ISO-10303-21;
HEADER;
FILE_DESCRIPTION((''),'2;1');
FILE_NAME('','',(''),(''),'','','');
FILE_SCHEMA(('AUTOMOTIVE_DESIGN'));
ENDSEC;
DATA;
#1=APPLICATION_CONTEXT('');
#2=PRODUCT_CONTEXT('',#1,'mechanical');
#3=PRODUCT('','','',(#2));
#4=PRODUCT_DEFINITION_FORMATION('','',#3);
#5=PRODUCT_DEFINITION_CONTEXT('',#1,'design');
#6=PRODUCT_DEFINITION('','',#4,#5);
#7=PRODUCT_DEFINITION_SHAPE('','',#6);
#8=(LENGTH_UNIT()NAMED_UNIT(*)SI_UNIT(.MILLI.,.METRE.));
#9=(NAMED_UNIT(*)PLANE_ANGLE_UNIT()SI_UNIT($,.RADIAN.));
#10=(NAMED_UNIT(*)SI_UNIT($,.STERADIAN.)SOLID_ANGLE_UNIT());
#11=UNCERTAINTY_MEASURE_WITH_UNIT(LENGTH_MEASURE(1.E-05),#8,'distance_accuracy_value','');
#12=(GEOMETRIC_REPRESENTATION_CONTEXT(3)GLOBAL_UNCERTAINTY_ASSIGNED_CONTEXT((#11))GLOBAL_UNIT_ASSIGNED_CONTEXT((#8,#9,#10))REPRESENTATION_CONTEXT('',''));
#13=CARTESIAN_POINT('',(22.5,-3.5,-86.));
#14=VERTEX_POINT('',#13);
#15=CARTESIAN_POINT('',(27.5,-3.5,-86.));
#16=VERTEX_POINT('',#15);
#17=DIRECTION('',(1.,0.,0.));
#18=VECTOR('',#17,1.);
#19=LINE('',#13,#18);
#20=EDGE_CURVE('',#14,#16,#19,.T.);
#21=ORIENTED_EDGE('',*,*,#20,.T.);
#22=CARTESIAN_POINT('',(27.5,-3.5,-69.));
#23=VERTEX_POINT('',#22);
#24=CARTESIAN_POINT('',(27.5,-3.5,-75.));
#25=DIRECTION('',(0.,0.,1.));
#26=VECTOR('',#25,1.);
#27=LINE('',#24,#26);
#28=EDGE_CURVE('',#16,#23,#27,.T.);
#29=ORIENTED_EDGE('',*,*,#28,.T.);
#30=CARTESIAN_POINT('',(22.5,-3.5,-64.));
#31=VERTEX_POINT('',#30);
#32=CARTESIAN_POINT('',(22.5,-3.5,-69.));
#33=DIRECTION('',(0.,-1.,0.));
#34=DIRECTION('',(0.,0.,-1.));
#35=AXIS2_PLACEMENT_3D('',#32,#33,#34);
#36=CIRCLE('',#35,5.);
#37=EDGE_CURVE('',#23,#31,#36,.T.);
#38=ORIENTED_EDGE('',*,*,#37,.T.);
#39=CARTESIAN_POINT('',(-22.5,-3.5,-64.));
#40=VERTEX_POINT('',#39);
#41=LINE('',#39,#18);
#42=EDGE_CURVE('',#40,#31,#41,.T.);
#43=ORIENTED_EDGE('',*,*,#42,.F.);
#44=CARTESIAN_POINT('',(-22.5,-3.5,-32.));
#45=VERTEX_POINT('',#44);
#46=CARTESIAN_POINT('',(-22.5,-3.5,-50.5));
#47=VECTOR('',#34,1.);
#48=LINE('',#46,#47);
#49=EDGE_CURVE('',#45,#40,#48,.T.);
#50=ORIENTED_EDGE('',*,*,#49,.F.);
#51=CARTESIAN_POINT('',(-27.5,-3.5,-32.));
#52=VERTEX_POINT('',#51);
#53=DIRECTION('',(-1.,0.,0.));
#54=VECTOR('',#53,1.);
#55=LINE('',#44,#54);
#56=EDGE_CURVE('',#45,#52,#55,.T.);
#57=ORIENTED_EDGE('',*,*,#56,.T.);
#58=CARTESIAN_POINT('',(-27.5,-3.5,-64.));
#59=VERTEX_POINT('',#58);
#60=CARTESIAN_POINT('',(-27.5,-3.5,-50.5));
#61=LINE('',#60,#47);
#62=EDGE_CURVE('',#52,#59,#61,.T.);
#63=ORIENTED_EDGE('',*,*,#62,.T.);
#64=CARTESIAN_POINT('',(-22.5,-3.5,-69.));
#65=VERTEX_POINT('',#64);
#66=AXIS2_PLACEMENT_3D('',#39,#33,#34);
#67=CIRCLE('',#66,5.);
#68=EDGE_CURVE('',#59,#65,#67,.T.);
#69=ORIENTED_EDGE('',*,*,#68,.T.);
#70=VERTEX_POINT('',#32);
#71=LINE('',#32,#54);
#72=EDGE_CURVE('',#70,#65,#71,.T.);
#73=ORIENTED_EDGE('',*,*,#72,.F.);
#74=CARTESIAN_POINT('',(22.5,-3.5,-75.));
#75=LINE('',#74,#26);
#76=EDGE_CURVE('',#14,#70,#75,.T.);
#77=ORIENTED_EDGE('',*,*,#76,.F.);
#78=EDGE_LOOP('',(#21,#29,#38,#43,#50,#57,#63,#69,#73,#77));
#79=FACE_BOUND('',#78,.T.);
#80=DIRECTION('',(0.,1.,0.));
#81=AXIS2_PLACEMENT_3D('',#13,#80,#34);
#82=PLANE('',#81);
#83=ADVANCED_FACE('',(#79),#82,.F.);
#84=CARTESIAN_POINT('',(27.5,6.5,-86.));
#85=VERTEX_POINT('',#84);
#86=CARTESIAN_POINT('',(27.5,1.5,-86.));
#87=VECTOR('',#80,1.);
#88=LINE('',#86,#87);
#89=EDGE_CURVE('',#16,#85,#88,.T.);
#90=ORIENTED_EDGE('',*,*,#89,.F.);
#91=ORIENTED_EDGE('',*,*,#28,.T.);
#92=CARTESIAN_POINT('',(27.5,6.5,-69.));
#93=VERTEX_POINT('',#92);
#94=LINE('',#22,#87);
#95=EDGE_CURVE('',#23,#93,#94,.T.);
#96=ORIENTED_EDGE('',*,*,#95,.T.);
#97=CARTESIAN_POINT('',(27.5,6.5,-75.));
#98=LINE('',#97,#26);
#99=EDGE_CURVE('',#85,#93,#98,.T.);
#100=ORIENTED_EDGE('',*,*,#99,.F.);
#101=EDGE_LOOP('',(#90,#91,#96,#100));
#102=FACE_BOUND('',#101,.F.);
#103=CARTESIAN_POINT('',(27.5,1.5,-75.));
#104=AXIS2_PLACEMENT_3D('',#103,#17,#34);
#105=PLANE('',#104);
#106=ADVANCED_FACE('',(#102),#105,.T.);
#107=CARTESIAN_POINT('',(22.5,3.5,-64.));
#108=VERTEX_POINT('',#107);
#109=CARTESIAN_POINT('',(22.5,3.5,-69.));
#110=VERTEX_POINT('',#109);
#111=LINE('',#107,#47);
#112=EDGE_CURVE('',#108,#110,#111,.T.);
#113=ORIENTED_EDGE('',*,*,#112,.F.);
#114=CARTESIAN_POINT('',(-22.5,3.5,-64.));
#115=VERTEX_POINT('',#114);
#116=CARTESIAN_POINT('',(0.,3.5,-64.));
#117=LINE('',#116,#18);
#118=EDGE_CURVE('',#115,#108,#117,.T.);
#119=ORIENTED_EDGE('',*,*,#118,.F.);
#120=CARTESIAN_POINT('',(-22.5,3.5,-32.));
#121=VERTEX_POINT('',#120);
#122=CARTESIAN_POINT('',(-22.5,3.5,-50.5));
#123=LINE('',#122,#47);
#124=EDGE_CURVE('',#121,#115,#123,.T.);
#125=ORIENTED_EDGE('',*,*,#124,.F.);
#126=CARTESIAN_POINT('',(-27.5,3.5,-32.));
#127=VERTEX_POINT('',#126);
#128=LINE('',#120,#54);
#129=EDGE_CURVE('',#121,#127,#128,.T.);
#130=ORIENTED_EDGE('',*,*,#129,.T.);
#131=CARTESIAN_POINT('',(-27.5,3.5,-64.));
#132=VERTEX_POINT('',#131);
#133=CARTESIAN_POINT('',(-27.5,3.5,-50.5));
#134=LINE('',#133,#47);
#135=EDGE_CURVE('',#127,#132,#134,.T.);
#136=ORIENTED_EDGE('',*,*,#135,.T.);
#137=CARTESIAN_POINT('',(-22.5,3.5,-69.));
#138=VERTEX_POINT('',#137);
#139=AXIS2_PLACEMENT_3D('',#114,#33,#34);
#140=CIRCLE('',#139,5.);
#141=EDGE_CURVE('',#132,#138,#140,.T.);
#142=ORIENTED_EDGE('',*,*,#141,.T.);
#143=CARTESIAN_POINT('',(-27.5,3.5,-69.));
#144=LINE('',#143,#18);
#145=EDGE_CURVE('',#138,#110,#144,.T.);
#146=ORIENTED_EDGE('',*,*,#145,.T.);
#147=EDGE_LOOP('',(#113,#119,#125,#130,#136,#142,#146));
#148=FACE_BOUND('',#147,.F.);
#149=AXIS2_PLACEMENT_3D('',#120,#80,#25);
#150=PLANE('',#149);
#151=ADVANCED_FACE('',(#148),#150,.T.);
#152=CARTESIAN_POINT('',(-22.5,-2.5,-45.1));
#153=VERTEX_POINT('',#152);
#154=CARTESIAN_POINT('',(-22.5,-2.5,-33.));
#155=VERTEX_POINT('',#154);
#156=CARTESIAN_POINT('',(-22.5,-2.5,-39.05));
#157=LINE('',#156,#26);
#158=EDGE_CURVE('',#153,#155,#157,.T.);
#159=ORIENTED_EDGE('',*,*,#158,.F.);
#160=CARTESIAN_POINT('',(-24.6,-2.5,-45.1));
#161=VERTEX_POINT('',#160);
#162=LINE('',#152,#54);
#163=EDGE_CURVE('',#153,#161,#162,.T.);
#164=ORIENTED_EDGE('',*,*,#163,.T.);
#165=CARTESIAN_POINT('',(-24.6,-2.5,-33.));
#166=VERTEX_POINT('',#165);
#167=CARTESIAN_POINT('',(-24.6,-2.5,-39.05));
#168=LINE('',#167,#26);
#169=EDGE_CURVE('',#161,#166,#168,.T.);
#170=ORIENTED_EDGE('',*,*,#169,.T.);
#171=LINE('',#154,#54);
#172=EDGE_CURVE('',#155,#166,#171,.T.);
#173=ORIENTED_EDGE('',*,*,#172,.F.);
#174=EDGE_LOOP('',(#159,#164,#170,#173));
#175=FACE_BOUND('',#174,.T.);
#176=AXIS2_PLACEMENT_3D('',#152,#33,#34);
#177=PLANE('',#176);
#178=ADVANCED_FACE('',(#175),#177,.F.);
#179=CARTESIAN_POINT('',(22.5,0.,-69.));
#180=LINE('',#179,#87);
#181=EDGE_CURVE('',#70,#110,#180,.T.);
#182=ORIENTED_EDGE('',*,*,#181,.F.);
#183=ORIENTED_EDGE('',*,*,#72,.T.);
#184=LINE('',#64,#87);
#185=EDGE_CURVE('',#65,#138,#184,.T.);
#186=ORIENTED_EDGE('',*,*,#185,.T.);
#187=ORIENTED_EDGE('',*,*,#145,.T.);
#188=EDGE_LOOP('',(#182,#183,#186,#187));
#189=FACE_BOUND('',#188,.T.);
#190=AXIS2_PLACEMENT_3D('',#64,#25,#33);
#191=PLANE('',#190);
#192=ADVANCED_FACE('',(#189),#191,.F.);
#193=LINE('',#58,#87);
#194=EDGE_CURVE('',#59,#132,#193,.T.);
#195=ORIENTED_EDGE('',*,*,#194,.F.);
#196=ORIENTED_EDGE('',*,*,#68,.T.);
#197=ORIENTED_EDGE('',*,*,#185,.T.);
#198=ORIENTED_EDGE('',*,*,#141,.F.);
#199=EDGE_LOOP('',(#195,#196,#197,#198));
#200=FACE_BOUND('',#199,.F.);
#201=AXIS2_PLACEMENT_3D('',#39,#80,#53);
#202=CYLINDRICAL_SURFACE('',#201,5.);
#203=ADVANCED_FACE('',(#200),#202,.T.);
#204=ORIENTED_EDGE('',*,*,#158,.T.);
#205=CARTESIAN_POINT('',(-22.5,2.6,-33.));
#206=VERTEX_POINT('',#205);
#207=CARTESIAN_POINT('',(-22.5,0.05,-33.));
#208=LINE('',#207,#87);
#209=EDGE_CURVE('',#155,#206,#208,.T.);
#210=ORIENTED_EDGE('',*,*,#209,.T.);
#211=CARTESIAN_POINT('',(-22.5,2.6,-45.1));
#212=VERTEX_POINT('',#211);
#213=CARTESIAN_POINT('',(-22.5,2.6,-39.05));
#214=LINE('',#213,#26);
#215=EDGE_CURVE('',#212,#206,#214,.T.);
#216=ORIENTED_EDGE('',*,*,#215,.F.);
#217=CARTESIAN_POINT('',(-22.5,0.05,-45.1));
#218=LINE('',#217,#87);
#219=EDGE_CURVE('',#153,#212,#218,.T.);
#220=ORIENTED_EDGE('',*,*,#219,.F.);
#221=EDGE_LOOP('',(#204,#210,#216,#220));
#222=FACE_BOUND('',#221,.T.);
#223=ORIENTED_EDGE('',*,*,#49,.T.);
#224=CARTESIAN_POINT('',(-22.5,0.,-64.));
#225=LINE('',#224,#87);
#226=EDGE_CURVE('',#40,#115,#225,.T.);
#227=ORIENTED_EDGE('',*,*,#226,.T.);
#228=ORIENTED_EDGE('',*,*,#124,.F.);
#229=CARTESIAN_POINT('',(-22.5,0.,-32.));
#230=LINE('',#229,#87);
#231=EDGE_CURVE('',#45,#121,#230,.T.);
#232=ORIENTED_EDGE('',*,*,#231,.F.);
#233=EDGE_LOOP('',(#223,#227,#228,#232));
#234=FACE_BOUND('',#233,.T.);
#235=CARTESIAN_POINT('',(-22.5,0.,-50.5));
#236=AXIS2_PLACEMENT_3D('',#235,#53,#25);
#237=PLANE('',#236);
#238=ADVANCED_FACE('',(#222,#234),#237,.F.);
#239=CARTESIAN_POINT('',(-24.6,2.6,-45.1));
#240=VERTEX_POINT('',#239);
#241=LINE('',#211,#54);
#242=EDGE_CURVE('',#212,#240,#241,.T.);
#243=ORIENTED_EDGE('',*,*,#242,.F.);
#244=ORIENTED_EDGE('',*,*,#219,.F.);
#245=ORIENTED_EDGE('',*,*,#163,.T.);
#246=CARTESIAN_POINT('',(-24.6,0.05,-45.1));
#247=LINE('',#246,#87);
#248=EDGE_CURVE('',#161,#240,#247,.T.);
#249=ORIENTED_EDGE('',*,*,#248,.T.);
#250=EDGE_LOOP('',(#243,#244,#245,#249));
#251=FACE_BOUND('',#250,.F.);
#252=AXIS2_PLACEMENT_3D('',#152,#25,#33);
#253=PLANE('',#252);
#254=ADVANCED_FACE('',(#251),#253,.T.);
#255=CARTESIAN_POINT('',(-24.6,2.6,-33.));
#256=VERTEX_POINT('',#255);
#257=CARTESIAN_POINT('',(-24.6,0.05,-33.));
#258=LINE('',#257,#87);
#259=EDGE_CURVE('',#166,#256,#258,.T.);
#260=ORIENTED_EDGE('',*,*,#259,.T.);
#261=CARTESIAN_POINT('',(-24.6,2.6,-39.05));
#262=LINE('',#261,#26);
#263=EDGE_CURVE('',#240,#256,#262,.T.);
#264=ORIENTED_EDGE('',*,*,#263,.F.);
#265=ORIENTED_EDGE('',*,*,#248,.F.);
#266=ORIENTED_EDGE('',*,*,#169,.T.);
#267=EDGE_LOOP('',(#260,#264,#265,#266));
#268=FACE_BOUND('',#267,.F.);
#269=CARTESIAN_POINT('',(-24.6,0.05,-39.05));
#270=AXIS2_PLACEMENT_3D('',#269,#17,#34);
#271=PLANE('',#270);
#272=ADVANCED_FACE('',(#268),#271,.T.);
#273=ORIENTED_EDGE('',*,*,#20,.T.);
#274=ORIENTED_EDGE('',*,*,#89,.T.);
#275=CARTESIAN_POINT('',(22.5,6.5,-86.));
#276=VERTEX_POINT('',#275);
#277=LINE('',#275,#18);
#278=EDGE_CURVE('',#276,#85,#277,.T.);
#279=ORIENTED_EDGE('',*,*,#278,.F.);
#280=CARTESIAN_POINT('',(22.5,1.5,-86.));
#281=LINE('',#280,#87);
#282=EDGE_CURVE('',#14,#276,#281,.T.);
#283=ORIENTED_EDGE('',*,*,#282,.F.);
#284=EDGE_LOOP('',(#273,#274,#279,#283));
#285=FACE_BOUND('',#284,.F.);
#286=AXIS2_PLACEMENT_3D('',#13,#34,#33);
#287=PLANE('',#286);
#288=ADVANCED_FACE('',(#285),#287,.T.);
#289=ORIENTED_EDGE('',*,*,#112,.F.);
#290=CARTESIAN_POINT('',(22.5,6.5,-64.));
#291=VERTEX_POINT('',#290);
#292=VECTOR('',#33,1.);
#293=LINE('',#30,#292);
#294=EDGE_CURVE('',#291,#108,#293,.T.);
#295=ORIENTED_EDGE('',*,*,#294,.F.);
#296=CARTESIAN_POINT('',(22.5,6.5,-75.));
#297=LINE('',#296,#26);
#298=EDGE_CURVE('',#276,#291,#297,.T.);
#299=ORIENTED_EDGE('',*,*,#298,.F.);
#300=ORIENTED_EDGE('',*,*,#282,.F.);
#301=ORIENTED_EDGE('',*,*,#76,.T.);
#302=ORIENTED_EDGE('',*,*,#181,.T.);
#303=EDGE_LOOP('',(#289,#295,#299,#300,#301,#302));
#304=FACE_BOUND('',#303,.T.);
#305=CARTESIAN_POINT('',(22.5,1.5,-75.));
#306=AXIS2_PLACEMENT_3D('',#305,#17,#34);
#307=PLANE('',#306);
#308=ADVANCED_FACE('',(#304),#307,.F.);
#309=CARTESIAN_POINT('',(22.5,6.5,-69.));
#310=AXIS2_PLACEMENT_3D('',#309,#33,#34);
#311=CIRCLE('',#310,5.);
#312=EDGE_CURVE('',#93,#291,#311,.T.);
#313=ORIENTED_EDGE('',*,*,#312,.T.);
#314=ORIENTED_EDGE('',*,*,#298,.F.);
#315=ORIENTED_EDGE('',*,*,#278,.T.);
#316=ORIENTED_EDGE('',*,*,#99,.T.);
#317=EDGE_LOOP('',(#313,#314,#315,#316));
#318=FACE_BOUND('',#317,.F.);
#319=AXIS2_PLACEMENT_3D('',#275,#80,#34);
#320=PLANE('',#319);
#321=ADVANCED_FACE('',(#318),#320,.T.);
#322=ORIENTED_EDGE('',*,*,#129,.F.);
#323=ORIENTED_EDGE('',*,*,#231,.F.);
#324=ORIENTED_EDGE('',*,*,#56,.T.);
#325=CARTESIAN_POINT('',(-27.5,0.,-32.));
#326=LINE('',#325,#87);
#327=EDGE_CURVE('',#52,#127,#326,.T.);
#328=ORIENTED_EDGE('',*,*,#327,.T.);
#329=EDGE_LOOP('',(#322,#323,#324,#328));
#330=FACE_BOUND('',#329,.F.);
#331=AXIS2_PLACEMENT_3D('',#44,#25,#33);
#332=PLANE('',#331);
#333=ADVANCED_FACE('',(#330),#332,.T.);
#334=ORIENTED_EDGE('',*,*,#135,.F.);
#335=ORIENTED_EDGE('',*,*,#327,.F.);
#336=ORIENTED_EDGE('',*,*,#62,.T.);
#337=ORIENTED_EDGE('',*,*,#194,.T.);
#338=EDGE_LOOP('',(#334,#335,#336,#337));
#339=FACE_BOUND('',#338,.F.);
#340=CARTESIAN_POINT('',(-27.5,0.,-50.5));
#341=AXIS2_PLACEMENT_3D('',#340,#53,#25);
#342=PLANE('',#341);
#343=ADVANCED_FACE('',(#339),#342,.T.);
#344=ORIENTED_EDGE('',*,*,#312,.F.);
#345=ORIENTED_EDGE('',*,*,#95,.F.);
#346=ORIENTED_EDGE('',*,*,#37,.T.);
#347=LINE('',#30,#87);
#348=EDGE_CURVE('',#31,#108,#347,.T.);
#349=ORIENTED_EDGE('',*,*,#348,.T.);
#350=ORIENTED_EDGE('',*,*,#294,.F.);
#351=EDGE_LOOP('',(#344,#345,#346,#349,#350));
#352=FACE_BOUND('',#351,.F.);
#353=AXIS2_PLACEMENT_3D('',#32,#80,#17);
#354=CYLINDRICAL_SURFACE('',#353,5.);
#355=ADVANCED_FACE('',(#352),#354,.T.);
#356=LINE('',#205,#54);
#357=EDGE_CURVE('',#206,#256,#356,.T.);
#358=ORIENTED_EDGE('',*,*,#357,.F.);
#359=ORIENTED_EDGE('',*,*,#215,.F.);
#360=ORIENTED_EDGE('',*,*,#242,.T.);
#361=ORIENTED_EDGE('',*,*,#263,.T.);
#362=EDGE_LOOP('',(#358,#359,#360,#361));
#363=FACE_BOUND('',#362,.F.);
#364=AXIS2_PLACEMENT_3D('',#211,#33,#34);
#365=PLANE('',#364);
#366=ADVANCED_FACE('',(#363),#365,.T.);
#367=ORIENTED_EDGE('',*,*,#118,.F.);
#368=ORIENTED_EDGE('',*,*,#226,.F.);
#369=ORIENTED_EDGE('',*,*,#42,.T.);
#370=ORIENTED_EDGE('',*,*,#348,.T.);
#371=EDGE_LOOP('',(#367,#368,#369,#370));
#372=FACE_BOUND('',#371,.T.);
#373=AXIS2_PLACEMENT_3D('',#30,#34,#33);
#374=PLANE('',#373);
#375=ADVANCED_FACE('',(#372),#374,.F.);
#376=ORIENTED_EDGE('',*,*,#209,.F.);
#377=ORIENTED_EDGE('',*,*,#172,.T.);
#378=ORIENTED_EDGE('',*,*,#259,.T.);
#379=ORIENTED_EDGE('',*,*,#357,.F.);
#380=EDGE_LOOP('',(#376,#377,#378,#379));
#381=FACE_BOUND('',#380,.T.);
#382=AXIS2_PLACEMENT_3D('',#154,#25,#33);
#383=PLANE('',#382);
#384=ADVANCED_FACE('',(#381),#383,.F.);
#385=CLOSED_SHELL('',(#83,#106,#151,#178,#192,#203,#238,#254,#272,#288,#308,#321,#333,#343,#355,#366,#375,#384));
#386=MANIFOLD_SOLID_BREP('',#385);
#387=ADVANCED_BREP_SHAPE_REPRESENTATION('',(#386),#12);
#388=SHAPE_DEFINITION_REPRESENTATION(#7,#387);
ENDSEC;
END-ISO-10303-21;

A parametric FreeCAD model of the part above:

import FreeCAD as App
import Part
import Sketcher
from FreeCAD import Vector
Q = App.Units.Quantity


def edges_at(feature, points):
    """Names of the edges that pass closest to the given points."""
    edges = feature.Shape.Edges
    near = lambda p: min(range(len(edges)), key=lambda i: edges[i].distToShape(Part.Vertex(*p))[0])
    return sorted({f"Edge{near(p) + 1}" for p in points})


def add_polygon(sketch, points):
    """Adds a closed chain of lines whose ends are joined by coincident constraints."""
    first, n = sketch.GeometryCount, len(points)
    for a, b in zip(points, points[1:] + points[:1]):
        sketch.addGeometry(Part.LineSegment(App.Vector(*a, 0), App.Vector(*b, 0)), False)
    for i in range(n):
        sketch.addConstraint(Sketcher.Constraint("Coincident", first + i, 2, first + (i + 1) % n, 1))

doc = App.newDocument("Part")
params = doc.addObject("Spreadsheet::Sheet", "Params")
for row, (alias, value) in enumerate([
    ("sketch1_width", "45 mm"),
    ("sketch1_height", "7 mm"),
    ("pad1_length", "5 mm"),
    ("sketch2_width", "7 mm"),
    ("sketch2_height", "37 mm"),
    ("pad2_length", "5 mm"),
    ("fillet_radius", "5 mm"),
    ("sketch3_width", "10 mm"),
    ("sketch3_height", "22 mm"),
    ("pad3_length", "5 mm"),
    ("fillet2_radius", "5 mm"),
    ("sketch4_width", "5.1 mm"),
    ("sketch4_height", "12.1 mm"),
    ("pocket1_length", "2.1 mm"),
], start=1):
    params.set(f"A{row}", alias)
    params.set(f"B{row}", "=" + value)
    params.setAlias(f"B{row}", alias)

body = doc.addObject("PartDesign::Body", "Body")

# Sketch on XY plane
sketch1 = body.newObject("Sketcher::SketchObject", "Sketch")
sketch1.AttachmentSupport = (doc.getObject("XY_Plane"), [""])
sketch1.MapMode = "FlatFace"
add_polygon(sketch1, [(-22.5, 3.5), (-22.5, -3.5), (22.5, -3.5), (22.5, 3.5)])  # lines 0-3
sketch1.addConstraint(Sketcher.Constraint("Vertical", 0))
sketch1.addConstraint(Sketcher.Constraint("Horizontal", 1))
sketch1.addConstraint(Sketcher.Constraint("Vertical", 2))
sketch1.addConstraint(Sketcher.Constraint("Horizontal", 3))
sketch1.addConstraint(Sketcher.Constraint("Symmetric", 0, 2, 2, 2, -1, 1))
sketch1.addConstraint(Sketcher.Constraint("DistanceX", 1, 1, 1, 2, Q("45 mm")))
sketch1.addConstraint(Sketcher.Constraint("DistanceY", 0, 2, 0, 1, Q("7 mm")))
sketch1.setExpression("Constraints[9]", "Params.sketch1_width")
sketch1.setExpression("Constraints[10]", "Params.sketch1_height")
pad1 = body.newObject("PartDesign::Pad", "Pad")
pad1.Profile = sketch1
pad1.setExpression("Length", "Params.pad1_length")

# Sketch on YZ plane
sketch2 = body.newObject("Sketcher::SketchObject", "Sketch001")
sketch2.AttachmentSupport = (doc.getObject("YZ_Plane"), [""])
sketch2.MapMode = "FlatFace"
sketch2.AttachmentOffset = App.Placement(Vector(0, 0, -22.5), App.Rotation())
add_polygon(sketch2, [(3.5, -32), (-3.5, -32), (-3.5, 5), (3.5, 5)])  # lines 0-3
sketch2.addConstraint(Sketcher.Constraint("Horizontal", 0))
sketch2.addConstraint(Sketcher.Constraint("Vertical", 1))
sketch2.addConstraint(Sketcher.Constraint("Horizontal", 2))
sketch2.addConstraint(Sketcher.Constraint("Vertical", 3))
sketch2.addConstraint(Sketcher.Constraint("DistanceX", 0, 2, 0, 1, Q("7 mm")))
sketch2.addConstraint(Sketcher.Constraint("DistanceY", 1, 1, 1, 2, Q("37 mm")))
sketch2.addConstraint(Sketcher.Constraint("DistanceY", 0, 2, -1, 1, Q("32 mm")))
sketch2.addConstraint(Sketcher.Constraint("DistanceX", 0, 2, -1, 1, Q("3.5 mm")))
sketch2.setExpression("Constraints[8]", "Params.sketch2_width")
sketch2.setExpression("Constraints[9]", "Params.sketch2_height")
pad2 = body.newObject("PartDesign::Pad", "Pad001")
pad2.Profile = sketch2
pad2.setExpression("Length", "Params.pad2_length")
pad2.Reversed = True
doc.recompute()

fillet = body.newObject("PartDesign::Fillet", "Fillet")
fillet.Base = (pad2, edges_at(pad2, [(-27.5, 0, 5)]))
fillet.setExpression("Radius", "Params.fillet_radius")

# Sketch on YZ plane
sketch3 = body.newObject("Sketcher::SketchObject", "Sketch002")
sketch3.AttachmentSupport = (doc.getObject("YZ_Plane"), [""])
sketch3.MapMode = "FlatFace"
sketch3.AttachmentOffset = App.Placement(Vector(0, 0, 22.5), App.Rotation())
add_polygon(sketch3, [(6.5, 22), (-3.5, 22), (-3.5, 0), (6.5, 0)])  # lines 0-3
sketch3.addConstraint(Sketcher.Constraint("Horizontal", 0))
sketch3.addConstraint(Sketcher.Constraint("Vertical", 1))
sketch3.addConstraint(Sketcher.Constraint("Horizontal", 2))
sketch3.addConstraint(Sketcher.Constraint("Vertical", 3))
sketch3.addConstraint(Sketcher.Constraint("PointOnObject", 1, 2, -1))
sketch3.addConstraint(Sketcher.Constraint("DistanceX", 0, 2, 0, 1, Q("10 mm")))
sketch3.addConstraint(Sketcher.Constraint("DistanceY", 1, 2, 1, 1, Q("22 mm")))
sketch3.addConstraint(Sketcher.Constraint("DistanceX", 0, 2, -1, 1, Q("3.5 mm")))
sketch3.setExpression("Constraints[9]", "Params.sketch3_width")
sketch3.setExpression("Constraints[10]", "Params.sketch3_height")
pad3 = body.newObject("PartDesign::Pad", "Pad002")
pad3.Profile = sketch3
pad3.setExpression("Length", "Params.pad3_length")
doc.recompute()

fillet2 = body.newObject("PartDesign::Fillet", "Fillet001")
fillet2.Base = (pad3, edges_at(pad3, [(27.5, 1.5, 0)]))
fillet2.setExpression("Radius", "Params.fillet2_radius")

# Sketch on YZ plane
sketch4 = body.newObject("Sketcher::SketchObject", "Sketch003")
sketch4.AttachmentSupport = (doc.getObject("YZ_Plane"), [""])
sketch4.MapMode = "FlatFace"
sketch4.AttachmentOffset = App.Placement(Vector(0, 0, -22.5), App.Rotation())
add_polygon(sketch4, [(2.6, -18.9), (-2.5, -18.9), (-2.5, -31), (2.6, -31)])  # lines 0-3
sketch4.addConstraint(Sketcher.Constraint("Horizontal", 0))
sketch4.addConstraint(Sketcher.Constraint("Vertical", 1))
sketch4.addConstraint(Sketcher.Constraint("Horizontal", 2))
sketch4.addConstraint(Sketcher.Constraint("Vertical", 3))
sketch4.addConstraint(Sketcher.Constraint("DistanceX", 0, 2, 0, 1, Q("5.1 mm")))
sketch4.addConstraint(Sketcher.Constraint("DistanceY", 1, 2, 1, 1, Q("12.1 mm")))
sketch4.addConstraint(Sketcher.Constraint("DistanceY", 1, 2, -1, 1, Q("31 mm")))
sketch4.addConstraint(Sketcher.Constraint("DistanceX", 0, 2, -1, 1, Q("2.5 mm")))
sketch4.setExpression("Constraints[8]", "Params.sketch4_width")
sketch4.setExpression("Constraints[9]", "Params.sketch4_height")
pocket1 = body.newObject("PartDesign::Pocket", "Pocket")
pocket1.Profile = sketch4
pocket1.setExpression("Length", "Params.pocket1_length")
body2 = doc.addObject("PartDesign::Body", "Body001")
doc.recompute()

mirroring = doc.addObject("Part::Mirroring", "Mirroring")
mirroring.Source = body
mirroring.Base = Vector(-27.5, 3.5, -32)
mirroring.Normal = Vector(0, 0, 1)
body2.BaseFeature = mirroring
doc.recompute()
body.Visibility = False
mirroring.Visibility = False

doc.recompute()
